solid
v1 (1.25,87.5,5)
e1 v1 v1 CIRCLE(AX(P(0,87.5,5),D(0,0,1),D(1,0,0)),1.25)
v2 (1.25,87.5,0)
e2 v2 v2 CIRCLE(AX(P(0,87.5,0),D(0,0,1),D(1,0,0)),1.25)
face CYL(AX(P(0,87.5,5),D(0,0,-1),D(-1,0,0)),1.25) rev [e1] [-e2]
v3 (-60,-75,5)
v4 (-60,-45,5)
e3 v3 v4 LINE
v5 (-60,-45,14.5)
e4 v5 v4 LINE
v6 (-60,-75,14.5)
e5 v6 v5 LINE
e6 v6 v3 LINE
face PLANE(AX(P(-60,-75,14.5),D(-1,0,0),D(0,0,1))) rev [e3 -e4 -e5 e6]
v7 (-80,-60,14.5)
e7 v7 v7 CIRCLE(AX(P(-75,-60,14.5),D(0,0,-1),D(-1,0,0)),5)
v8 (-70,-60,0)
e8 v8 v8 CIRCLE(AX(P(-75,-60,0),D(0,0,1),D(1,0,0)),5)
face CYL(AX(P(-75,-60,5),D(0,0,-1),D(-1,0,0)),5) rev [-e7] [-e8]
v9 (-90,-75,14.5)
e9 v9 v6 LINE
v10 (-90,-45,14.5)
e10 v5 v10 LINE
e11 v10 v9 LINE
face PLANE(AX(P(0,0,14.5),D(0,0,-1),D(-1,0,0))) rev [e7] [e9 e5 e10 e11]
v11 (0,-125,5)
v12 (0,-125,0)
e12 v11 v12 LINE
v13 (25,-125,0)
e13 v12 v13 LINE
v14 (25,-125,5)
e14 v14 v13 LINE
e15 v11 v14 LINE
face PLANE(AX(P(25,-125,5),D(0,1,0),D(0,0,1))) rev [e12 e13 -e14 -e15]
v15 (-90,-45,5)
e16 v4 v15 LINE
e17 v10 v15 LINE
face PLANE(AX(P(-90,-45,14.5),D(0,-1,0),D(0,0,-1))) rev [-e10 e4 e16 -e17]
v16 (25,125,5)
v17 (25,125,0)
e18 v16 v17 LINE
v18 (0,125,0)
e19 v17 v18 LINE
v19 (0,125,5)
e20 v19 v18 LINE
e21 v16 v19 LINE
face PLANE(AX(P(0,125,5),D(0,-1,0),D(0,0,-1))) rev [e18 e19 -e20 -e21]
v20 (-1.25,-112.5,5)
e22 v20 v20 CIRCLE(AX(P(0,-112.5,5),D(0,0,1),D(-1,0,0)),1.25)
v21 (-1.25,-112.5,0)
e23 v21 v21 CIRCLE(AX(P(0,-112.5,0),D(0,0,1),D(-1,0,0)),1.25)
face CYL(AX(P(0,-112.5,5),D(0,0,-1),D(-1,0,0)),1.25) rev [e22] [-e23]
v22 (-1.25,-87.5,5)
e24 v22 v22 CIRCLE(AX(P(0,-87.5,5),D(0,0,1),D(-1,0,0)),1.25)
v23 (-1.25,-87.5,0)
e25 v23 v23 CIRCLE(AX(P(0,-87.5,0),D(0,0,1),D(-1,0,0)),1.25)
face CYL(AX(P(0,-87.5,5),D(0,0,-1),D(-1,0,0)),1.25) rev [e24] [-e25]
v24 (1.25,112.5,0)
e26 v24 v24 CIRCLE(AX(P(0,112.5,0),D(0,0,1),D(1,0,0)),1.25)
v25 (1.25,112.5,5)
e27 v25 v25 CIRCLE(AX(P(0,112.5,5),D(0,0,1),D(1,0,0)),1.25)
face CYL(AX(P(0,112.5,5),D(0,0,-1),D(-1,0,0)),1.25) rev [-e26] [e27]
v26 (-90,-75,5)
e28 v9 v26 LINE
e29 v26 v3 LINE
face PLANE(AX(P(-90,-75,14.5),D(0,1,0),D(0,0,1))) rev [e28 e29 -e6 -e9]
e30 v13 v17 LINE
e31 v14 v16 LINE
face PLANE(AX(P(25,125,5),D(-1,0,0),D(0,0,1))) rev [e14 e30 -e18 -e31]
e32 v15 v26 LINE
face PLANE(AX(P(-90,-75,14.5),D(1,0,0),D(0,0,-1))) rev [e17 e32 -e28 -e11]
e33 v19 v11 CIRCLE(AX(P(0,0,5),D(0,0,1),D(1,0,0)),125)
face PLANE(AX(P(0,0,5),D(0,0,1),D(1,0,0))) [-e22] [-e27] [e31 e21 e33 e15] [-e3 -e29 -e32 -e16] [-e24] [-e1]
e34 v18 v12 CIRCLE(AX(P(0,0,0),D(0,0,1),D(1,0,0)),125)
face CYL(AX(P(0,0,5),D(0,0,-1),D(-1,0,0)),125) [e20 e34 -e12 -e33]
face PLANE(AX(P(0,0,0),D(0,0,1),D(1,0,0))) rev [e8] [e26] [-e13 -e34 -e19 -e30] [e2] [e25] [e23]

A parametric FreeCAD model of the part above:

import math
import FreeCAD as App
import Part
import Sketcher

V = App.Vector
Q = App.Units.Quantity


def add_polygon(sketch, points):
    """Adds a closed chain of lines whose ends are joined by coincident constraints."""
    first, n = sketch.GeometryCount, len(points)
    for a, b in zip(points, points[1:] + points[:1]):
        sketch.addGeometry(Part.LineSegment(App.Vector(*a, 0), App.Vector(*b, 0)), False)
    for i in range(n):
        sketch.addConstraint(Sketcher.Constraint("Coincident", first + i, 2, first + (i + 1) % n, 1))

doc = App.newDocument("Part")
body = doc.addObject("PartDesign::Body", "Body")

sketch1 = body.newObject("Sketcher::SketchObject", "Sketch")
sketch1.AttachmentSupport = (doc.getObject("XY_Plane"), [""])
sketch1.MapMode = "FlatFace"
sketch1.addGeometry(Part.LineSegment(V(25, 125, 0), V(0, 125, 0)), False)
sketch1.addGeometry(Part.ArcOfCircle(Part.Circle(V(0, 0, 0), V(0, 0, 1), 125), math.radians(90), math.radians(270)), False)
sketch1.addGeometry(Part.LineSegment(V(0, -125, 0), V(25, -125, 0)), False)
sketch1.addGeometry(Part.LineSegment(V(25, -125, 0), V(25, 125, 0)), False)
sketch1.addGeometry(Part.Circle(V(0, -112.5, 0), V(0, 0, 1), 1.2), False)
sketch1.addGeometry(Part.Circle(V(0, -87.5, 0), V(0, 0, 1), 1.2), False)
sketch1.addGeometry(Part.Circle(V(-75, -60, 0), V(0, 0, 1), 5), False)
sketch1.addGeometry(Part.Circle(V(0, 87.5, 0), V(0, 0, 1), 1.2), False)
sketch1.addGeometry(Part.Circle(V(0, 112.5, 0), V(0, 0, 1), 1.2), False)
sketch1.addConstraint(Sketcher.Constraint("Tangent", 0, 2, 1, 1))
sketch1.addConstraint(Sketcher.Constraint("Tangent", 1, 2, 2, 1))
sketch1.addConstraint(Sketcher.Constraint("Coincident", 2, 2, 3, 1))
sketch1.addConstraint(Sketcher.Constraint("Coincident", 3, 2, 0, 1))
sketch1.addConstraint(Sketcher.Constraint("Horizontal", 0))
sketch1.addConstraint(Sketcher.Constraint("Horizontal", 2))
sketch1.addConstraint(Sketcher.Constraint("Vertical", 3))
sketch1.addConstraint(Sketcher.Constraint("Coincident", 1, 3, -1, 1))
sketch1.addConstraint(Sketcher.Constraint("Equal", 4, 5))
sketch1.addConstraint(Sketcher.Constraint("Equal", 5, 7))
sketch1.addConstraint(Sketcher.Constraint("Equal", 7, 8))
sketch1.addConstraint(Sketcher.Constraint("Symmetric", 5, 3, 7, 3, -1, 1))
sketch1.addConstraint(Sketcher.Constraint("Symmetric", 4, 3, 8, 3, -1, 1))
sketch1.addConstraint(Sketcher.Constraint("PointOnObject", 4, 3, -2))
sketch1.addConstraint(Sketcher.Constraint("PointOnObject", 5, 3, -2))
sketch1.addConstraint(Sketcher.Constraint("Diameter", 6, Q("10 mm")))
sketch1.addConstraint(Sketcher.Constraint("Radius", 1, Q("125 mm")))
sketch1.addConstraint(Sketcher.Constraint("Diameter", 4, Q("2.5 mm")))
sketch1.addConstraint(Sketcher.Constraint("DistanceX", 0, 2, 0, 1, Q("25 mm")))
sketch1.addConstraint(Sketcher.Constraint("DistanceX", 6, 3, -1, 1, Q("75 mm")))
sketch1.addConstraint(Sketcher.Constraint("DistanceY", 6, 3, -1, 1, Q("60 mm")))
sketch1.addConstraint(Sketcher.Constraint("DistanceY", 4, 3, 5, 3, Q("25 mm")))
sketch1.addConstraint(Sketcher.Constraint("DistanceY", 5, 3, 7, 3, Q("175 mm")))
pad1 = body.newObject("PartDesign::Pad", "Pad")
pad1.Profile = sketch1
pad1.Length = 5

sketch2 = body.newObject("Sketcher::SketchObject", "Sketch001")
sketch2.AttachmentSupport = (doc.getObject("XY_Plane"), [""])
sketch2.MapMode = "FlatFace"
sketch2.AttachmentOffset = App.Placement(V(0, 0, 5), App.Rotation())
add_polygon(sketch2, [(-90, -45), (-90, -75), (-60, -75), (-60, -45)])
sketch2.addConstraint(Sketcher.Constraint("Vertical", 0))
sketch2.addConstraint(Sketcher.Constraint("Horizontal", 1))
sketch2.addConstraint(Sketcher.Constraint("Vertical", 2))
sketch2.addConstraint(Sketcher.Constraint("Horizontal", 3))
sketch2.addConstraint(Sketcher.Constraint("Equal", 3, 0))
sketch2.addConstraint(Sketcher.Constraint("DistanceX", 1, 1, 1, 2, Q("30 mm")))
sketch2.addConstraint(Sketcher.Constraint("DistanceX", 0, 2, -1, 1, Q("90 mm")))
sketch2.addConstraint(Sketcher.Constraint("DistanceY", 0, 2, -1, 1, Q("75 mm")))
pad2 = body.newObject("PartDesign::Pad", "Pad001")
pad2.Profile = sketch2
pad2.Length = 9.5

sketch3 = body.newObject("Sketcher::SketchObject", "Sketch002")
sketch3.AttachmentSupport = (doc.getObject("XY_Plane"), [""])
sketch3.MapMode = "FlatFace"
sketch3.AttachmentOffset = App.Placement(V(0, 0, 5), App.Rotation())
sketch3.addGeometry(Part.Circle(V(-75, -60, 0), V(0, 0, 1), 5), False)
sketch3.addConstraint(Sketcher.Constraint("Diameter", 0, Q("10 mm")))
sketch3.addConstraint(Sketcher.Constraint("DistanceX", 0, 3, -1, 1, Q("75 mm")))
sketch3.addConstraint(Sketcher.Constraint("DistanceY", 0, 3, -1, 1, Q("60 mm")))
pocket1 = body.newObject("PartDesign::Pocket", "Pocket")
pocket1.Profile = sketch3
pocket1.Length = 9.5
pocket1.Reversed = True

doc.recompute()
